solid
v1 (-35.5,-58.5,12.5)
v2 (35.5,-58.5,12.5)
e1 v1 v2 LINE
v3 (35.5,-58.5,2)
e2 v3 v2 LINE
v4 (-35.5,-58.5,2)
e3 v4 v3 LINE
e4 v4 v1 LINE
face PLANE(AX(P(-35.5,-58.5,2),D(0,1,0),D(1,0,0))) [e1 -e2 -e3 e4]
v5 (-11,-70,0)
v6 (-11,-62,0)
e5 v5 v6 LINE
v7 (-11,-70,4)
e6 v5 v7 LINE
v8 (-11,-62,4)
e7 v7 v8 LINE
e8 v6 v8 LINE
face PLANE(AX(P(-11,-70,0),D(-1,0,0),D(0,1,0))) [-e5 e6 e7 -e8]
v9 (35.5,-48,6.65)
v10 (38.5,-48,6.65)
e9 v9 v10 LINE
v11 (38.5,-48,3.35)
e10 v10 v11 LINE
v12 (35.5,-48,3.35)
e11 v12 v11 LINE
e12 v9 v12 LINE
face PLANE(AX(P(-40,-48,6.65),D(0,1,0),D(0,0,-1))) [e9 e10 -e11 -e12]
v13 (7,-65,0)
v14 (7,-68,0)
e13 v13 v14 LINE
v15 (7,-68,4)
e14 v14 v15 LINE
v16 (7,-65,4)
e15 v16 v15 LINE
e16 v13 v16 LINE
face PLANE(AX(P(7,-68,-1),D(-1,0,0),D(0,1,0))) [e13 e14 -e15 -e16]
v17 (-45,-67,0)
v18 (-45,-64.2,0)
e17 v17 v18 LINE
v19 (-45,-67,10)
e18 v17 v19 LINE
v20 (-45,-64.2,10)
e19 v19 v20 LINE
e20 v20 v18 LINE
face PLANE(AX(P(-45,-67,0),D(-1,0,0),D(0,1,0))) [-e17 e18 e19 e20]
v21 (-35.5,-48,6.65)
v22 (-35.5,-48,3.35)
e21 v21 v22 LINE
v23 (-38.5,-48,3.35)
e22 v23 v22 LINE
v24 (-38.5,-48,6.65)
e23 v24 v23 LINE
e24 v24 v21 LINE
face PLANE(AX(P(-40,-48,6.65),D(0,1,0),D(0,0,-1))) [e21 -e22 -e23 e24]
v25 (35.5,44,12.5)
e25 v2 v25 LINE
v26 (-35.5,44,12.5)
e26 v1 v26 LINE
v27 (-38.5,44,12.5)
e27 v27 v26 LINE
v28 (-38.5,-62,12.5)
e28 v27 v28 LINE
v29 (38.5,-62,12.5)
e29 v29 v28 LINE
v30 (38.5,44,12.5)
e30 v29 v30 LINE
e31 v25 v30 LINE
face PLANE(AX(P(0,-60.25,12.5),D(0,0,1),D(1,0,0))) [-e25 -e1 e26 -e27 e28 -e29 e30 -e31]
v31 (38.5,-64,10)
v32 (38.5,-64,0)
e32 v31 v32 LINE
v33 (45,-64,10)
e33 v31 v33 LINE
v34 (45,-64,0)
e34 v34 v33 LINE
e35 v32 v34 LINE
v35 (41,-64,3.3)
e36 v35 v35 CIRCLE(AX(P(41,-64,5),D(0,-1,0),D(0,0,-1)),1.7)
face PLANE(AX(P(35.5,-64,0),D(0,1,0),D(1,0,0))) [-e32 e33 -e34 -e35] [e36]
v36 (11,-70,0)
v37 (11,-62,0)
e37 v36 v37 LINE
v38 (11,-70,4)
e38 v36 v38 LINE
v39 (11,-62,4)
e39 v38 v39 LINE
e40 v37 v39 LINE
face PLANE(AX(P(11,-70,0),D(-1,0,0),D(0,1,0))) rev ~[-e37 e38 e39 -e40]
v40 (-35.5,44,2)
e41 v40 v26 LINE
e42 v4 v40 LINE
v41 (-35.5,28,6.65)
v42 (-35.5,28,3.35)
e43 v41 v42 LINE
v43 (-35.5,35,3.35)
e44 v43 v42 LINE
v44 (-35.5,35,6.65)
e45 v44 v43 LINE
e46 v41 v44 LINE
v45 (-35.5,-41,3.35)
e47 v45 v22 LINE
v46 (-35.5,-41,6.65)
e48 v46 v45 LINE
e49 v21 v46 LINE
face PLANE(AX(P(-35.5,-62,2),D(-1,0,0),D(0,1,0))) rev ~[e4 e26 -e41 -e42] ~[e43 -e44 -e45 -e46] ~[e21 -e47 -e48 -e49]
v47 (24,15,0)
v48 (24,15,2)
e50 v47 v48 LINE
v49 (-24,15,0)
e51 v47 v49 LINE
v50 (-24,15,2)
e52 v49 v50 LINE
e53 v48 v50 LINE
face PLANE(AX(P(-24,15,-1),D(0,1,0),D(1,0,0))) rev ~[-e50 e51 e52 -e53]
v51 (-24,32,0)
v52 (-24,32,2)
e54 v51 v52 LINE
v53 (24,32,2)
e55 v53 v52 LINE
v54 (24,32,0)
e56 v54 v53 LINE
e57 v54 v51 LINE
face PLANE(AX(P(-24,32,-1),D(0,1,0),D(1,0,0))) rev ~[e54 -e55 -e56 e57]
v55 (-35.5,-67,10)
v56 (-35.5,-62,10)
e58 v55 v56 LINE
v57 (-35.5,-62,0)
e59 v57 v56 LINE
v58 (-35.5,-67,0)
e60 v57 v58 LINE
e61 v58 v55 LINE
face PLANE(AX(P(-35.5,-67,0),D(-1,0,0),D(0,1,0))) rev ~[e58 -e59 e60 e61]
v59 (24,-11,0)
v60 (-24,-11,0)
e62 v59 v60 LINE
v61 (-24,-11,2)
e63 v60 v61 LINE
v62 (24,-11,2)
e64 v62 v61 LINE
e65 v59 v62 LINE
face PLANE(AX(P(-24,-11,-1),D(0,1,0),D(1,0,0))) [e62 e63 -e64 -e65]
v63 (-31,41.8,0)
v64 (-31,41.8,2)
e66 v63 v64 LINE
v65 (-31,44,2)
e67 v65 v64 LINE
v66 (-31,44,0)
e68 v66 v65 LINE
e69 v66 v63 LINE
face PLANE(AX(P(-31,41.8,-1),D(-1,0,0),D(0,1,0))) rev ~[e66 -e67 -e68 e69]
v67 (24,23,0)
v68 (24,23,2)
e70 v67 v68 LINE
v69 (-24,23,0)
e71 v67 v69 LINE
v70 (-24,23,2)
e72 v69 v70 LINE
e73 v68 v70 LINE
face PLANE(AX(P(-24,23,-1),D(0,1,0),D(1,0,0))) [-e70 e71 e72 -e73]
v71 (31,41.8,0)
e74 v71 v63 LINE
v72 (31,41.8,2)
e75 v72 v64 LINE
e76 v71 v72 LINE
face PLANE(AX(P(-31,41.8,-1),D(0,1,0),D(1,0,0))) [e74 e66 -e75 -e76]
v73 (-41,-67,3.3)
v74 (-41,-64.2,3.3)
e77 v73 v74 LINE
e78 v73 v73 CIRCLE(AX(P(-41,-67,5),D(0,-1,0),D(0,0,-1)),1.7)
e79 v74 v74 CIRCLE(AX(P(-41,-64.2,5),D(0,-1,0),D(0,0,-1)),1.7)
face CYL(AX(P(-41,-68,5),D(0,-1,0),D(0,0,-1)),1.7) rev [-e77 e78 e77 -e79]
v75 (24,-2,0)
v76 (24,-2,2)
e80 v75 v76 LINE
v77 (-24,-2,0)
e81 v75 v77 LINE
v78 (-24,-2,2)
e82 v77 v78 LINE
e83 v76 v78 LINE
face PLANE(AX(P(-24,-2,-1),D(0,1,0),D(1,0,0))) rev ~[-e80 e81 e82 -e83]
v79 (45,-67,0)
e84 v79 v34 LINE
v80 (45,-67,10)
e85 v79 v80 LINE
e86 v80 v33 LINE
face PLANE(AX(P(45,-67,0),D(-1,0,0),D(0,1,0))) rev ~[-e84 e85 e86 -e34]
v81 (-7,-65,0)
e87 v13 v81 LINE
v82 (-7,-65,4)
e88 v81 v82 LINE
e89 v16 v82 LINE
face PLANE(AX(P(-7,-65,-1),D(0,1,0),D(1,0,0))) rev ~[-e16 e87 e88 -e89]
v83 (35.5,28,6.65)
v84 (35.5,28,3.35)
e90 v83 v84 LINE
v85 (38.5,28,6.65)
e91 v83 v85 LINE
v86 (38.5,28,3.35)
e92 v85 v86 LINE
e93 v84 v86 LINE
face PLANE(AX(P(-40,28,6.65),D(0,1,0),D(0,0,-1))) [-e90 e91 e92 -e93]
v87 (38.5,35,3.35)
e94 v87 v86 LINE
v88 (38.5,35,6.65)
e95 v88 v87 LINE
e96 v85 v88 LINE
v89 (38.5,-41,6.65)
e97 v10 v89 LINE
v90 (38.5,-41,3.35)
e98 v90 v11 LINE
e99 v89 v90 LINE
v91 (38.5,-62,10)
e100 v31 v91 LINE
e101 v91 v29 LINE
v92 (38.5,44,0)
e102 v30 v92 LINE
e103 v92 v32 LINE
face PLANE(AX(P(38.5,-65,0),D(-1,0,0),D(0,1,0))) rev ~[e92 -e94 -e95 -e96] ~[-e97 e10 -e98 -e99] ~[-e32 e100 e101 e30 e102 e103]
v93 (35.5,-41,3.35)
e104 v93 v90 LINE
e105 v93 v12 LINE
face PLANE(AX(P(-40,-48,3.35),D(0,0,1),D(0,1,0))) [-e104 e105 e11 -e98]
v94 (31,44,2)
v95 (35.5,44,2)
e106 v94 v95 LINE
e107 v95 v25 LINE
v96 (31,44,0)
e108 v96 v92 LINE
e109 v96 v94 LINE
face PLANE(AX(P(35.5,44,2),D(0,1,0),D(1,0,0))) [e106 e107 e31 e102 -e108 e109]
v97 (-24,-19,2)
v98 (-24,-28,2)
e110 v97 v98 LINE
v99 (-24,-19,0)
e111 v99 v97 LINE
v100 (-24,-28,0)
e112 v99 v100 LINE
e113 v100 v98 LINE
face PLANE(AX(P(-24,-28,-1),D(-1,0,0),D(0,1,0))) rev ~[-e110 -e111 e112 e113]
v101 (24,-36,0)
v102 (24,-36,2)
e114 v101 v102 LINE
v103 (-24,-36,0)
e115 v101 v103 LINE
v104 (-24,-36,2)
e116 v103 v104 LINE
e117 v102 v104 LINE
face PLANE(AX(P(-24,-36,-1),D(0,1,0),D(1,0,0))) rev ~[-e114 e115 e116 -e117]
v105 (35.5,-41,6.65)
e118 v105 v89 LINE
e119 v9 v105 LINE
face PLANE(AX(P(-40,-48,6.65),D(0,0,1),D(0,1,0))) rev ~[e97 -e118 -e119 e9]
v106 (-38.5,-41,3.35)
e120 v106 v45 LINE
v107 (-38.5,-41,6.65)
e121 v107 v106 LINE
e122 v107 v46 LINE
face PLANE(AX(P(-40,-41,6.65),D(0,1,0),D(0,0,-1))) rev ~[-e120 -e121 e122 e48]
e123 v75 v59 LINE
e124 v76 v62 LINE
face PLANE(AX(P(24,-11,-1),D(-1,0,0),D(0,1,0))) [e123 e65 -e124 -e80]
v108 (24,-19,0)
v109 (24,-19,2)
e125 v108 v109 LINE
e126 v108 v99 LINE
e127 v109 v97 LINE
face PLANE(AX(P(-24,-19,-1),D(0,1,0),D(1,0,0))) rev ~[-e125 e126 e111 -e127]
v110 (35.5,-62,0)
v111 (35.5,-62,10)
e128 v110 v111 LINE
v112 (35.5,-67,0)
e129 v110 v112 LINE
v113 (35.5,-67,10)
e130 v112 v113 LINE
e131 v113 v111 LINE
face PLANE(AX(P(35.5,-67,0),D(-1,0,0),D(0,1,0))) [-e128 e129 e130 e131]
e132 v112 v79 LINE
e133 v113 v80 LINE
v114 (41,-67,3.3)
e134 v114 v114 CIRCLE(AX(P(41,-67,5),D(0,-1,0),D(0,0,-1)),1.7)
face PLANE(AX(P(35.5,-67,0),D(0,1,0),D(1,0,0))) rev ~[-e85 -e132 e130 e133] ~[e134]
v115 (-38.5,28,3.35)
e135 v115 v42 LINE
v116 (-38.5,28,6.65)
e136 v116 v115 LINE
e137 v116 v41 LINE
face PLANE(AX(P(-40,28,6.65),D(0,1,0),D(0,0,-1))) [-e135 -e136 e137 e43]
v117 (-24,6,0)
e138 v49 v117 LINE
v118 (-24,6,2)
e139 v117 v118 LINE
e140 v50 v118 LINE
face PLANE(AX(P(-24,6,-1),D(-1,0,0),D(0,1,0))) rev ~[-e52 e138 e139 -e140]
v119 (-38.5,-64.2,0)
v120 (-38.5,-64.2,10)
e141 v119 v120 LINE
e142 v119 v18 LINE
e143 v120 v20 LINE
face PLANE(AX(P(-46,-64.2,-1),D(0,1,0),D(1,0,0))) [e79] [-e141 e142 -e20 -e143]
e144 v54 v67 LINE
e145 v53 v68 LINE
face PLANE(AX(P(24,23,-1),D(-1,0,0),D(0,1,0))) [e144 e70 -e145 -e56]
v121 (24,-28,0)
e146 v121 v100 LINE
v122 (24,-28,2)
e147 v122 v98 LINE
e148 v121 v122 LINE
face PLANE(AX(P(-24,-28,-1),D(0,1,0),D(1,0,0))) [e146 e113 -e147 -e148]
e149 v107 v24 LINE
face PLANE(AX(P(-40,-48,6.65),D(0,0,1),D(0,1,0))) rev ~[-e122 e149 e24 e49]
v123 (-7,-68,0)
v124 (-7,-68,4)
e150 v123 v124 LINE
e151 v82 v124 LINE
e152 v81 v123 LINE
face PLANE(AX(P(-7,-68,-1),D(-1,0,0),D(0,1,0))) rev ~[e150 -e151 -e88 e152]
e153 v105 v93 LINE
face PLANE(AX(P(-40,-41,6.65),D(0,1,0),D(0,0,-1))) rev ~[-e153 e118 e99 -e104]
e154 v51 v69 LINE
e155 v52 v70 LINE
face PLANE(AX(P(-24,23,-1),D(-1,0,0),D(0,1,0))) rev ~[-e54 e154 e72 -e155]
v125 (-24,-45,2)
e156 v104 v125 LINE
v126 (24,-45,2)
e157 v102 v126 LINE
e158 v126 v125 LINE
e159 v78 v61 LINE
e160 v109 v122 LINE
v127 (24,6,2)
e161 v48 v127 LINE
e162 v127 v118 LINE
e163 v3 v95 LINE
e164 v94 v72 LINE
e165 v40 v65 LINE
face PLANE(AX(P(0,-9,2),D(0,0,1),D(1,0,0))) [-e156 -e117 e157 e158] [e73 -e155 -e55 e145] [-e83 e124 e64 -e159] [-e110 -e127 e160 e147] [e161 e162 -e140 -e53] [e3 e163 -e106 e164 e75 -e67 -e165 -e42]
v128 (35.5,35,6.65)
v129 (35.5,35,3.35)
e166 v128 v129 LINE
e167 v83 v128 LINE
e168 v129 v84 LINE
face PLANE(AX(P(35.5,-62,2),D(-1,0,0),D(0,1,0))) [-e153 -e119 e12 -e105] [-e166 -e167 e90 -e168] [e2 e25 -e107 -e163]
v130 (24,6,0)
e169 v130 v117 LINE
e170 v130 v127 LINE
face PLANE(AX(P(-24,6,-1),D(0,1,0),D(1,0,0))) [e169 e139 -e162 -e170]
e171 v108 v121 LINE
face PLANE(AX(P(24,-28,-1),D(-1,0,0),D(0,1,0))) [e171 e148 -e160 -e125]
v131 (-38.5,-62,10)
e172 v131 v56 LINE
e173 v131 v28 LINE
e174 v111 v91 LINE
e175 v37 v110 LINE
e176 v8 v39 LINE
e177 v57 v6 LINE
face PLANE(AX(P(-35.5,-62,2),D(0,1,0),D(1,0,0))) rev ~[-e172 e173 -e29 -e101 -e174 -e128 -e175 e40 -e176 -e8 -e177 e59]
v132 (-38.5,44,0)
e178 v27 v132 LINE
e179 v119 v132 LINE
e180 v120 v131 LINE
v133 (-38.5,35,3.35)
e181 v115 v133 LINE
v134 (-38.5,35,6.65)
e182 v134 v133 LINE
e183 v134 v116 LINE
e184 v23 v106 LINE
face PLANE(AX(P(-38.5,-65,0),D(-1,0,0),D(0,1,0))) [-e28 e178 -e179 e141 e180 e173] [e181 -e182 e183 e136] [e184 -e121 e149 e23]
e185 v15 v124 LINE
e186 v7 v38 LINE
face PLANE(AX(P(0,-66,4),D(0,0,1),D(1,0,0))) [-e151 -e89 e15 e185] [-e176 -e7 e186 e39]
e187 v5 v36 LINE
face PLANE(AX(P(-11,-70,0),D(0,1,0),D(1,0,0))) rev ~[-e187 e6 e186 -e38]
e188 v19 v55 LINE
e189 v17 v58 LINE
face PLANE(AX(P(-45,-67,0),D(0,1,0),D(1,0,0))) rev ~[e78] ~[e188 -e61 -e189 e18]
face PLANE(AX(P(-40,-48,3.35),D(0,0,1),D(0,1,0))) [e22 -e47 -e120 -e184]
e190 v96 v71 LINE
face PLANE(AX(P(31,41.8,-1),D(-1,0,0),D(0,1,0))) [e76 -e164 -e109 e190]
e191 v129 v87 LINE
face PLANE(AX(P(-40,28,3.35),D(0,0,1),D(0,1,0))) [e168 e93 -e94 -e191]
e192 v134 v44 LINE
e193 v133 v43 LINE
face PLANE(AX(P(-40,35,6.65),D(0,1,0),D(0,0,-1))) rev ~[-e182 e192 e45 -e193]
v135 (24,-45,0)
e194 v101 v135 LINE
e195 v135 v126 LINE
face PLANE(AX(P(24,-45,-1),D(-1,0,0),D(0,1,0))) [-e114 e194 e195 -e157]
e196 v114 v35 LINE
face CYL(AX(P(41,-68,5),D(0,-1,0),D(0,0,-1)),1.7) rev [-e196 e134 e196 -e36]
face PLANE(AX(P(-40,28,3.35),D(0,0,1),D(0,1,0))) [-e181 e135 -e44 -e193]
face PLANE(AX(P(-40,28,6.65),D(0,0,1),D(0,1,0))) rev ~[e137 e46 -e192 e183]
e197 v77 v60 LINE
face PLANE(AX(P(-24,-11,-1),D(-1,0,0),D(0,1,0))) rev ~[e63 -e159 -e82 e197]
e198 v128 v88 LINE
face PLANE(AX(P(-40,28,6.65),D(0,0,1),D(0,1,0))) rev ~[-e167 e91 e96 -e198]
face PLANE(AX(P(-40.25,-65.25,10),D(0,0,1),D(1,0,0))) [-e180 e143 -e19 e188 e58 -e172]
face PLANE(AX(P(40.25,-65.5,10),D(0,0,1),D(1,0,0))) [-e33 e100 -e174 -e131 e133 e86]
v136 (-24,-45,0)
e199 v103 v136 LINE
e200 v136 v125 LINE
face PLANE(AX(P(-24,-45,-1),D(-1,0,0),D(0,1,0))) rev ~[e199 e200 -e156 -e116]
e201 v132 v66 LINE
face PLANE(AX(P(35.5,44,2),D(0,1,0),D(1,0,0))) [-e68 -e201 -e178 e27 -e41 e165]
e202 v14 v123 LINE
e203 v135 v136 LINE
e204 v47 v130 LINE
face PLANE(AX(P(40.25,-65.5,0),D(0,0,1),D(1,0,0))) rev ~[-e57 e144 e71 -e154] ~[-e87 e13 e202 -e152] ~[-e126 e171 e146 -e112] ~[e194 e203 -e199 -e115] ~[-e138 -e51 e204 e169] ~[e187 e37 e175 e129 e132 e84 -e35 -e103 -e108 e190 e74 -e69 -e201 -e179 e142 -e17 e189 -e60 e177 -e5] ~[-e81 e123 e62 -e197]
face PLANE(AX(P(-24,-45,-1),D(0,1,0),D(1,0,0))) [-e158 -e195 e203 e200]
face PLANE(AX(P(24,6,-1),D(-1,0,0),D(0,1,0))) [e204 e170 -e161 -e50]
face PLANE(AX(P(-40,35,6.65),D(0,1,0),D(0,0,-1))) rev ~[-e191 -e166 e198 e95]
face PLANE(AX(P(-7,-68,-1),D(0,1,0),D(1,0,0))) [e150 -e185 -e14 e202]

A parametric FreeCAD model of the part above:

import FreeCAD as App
import Part
import Sketcher
from FreeCAD import Vector
Q = App.Units.Quantity


def add_polygon(sketch, points):
    """Adds a closed chain of lines whose ends are joined by coincident constraints."""
    first, n = sketch.GeometryCount, len(points)
    for a, b in zip(points, points[1:] + points[:1]):
        sketch.addGeometry(Part.LineSegment(App.Vector(*a, 0), App.Vector(*b, 0)), False)
    for i in range(n):
        sketch.addConstraint(Sketcher.Constraint("Coincident", first + i, 2, first + (i + 1) % n, 1))

doc = App.newDocument("Part")
params = doc.addObject("Spreadsheet::Sheet", "Params")
for row, (alias, value) in enumerate([
    ("sketch1_width", "77 mm"),
    ("sketch1_height", "106 mm"),
    ("pad1_length", "2 mm"),
    ("sketch2_width", "3 mm"),
    ("sketch2_height", "106 mm"),
    ("pad2_length", "10.5 mm"),
    ("sketch3_width", "3 mm"),
    ("sketch3_height", "106 mm"),
    ("pad3_length", "10.5 mm"),
    ("sketch4_width", "71 mm"),
    ("sketch4_height", "3.5 mm"),
    ("pad4_length", "10.5 mm"),
    ("sketch5_width", "22 mm"),
    ("sketch5_height", "8 mm"),
    ("pad5_length", "4 mm"),
    ("sketch6_width", "3 mm"),
    ("sketch6_height", "5 mm"),
    ("pad6_length", "10 mm"),
    ("sketch7_width", "3 mm"),
    ("sketch7_height", "5 mm"),
    ("pad7_length", "10 mm"),
    ("sketch8_width", "9.5 mm"),
    ("sketch8_height", "3.5 mm"),
    ("pad8_length", "10 mm"),
    ("sketch9_height", "3 mm"),
    ("sketch9_width", "9.5 mm"),
    ("pad9_length", "10 mm"),
    ("sketch10_diameter", "3.4 mm"),
    ("pocket1_length", "5 mm"),
    ("sketch11_width", "48 mm"),
    ("sketch11_height", "9 mm"),
    ("pocket2_length", "4 mm"),
    ("sketch12_diameter", "3.3 mm"),
    ("pocket3_length", "80 mm"),
    ("sketch13_width", "14 mm"),
    ("sketch13_height", "3 mm"),
    ("pocket4_length", "6 mm"),
    ("sketch14_width", "7.5 mm"),
    ("sketch14_height", "4.2 mm"),
    ("pocket5_length", "15 mm"),
    ("sketch15_width", "7 mm"),
    ("sketch15_height", "3.3 mm"),
    ("pocket6_length", "80 mm"),
    ("sketch16_width", "7 mm"),
    ("sketch16_height", "3.3 mm"),
    ("pocket7_length", "80 mm"),
    ("sketch17_width", "62 mm"),
    ("sketch17_height", "3.2 mm"),
    ("pocket8_length", "5 mm"),
], start=1):
    params.set(f"A{row}", alias)
    params.set(f"B{row}", "=" + value)
    params.setAlias(f"B{row}", alias)

body = doc.addObject("PartDesign::Body", "Body")

# Sketch on XY plane
sketch1 = body.newObject("Sketcher::SketchObject", "Sketch")
sketch1.AttachmentSupport = (doc.getObject("XY_Plane"), [""])
sketch1.MapMode = "FlatFace"
add_polygon(sketch1, [(-38, 44), (-38, -62), (38, -62), (38, 44)])  # lines 0-3
sketch1.addConstraint(Sketcher.Constraint("Vertical", 0))
sketch1.addConstraint(Sketcher.Constraint("Horizontal", 1))
sketch1.addConstraint(Sketcher.Constraint("Vertical", 2))
sketch1.addConstraint(Sketcher.Constraint("Horizontal", 3))
sketch1.addConstraint(Sketcher.Constraint("DistanceX", 1, 1, 1, 2, Q("77 mm")))
sketch1.addConstraint(Sketcher.Constraint("DistanceY", 0, 2, 0, 1, Q("106 mm")))
sketch1.addConstraint(Sketcher.Constraint("DistanceY", 0, 2, -1, 1, Q("62 mm")))
sketch1.addConstraint(Sketcher.Constraint("DistanceX", 0, 2, -1, 1, Q("38.5 mm")))
sketch1.setExpression("Constraints[8]", "Params.sketch1_width")
sketch1.setExpression("Constraints[9]", "Params.sketch1_height")
pad1 = body.newObject("PartDesign::Pad", "Pad")
pad1.Profile = sketch1
pad1.setExpression("Length", "Params.pad1_length")

# Sketch on XY plane
sketch2 = body.newObject("Sketcher::SketchObject", "Sketch001")
sketch2.AttachmentSupport = (doc.getObject("XY_Plane"), [""])
sketch2.MapMode = "FlatFace"
sketch2.AttachmentOffset = App.Placement(Vector(0, 0, 2), App.Rotation())
add_polygon(sketch2, [(-38.5, 44), (-38.5, -62), (-35.5, -62), (-35.5, 44)])  # lines 0-3
sketch2.addConstraint(Sketcher.Constraint("Vertical", 0))
sketch2.addConstraint(Sketcher.Constraint("Horizontal", 1))
sketch2.addConstraint(Sketcher.Constraint("Vertical", 2))
sketch2.addConstraint(Sketcher.Constraint("Horizontal", 3))
sketch2.addConstraint(Sketcher.Constraint("DistanceX", 1, 1, 1, 2, Q("3 mm")))
sketch2.addConstraint(Sketcher.Constraint("DistanceY", 0, 2, 0, 1, Q("106 mm")))
sketch2.addConstraint(Sketcher.Constraint("DistanceY", 0, 2, -1, 1, Q("62 mm")))
sketch2.addConstraint(Sketcher.Constraint("DistanceX", 0, 2, -1, 1, Q("38.5 mm")))
sketch2.setExpression("Constraints[8]", "Params.sketch2_width")
sketch2.setExpression("Constraints[9]", "Params.sketch2_height")
pad2 = body.newObject("PartDesign::Pad", "Pad001")
pad2.Profile = sketch2
pad2.setExpression("Length", "Params.pad2_length")

# Sketch on XY plane
sketch3 = body.newObject("Sketcher::SketchObject", "Sketch002")
sketch3.AttachmentSupport = (doc.getObject("XY_Plane"), [""])
sketch3.MapMode = "FlatFace"
sketch3.AttachmentOffset = App.Placement(Vector(0, 0, 2), App.Rotation())
add_polygon(sketch3, [(35.5, 44), (35.5, -62), (38.5, -62), (38.5, 44)])  # lines 0-3
sketch3.addConstraint(Sketcher.Constraint("Vertical", 0))
sketch3.addConstraint(Sketcher.Constraint("Horizontal", 1))
sketch3.addConstraint(Sketcher.Constraint("Vertical", 2))
sketch3.addConstraint(Sketcher.Constraint("Horizontal", 3))
sketch3.addConstraint(Sketcher.Constraint("DistanceX", 1, 1, 1, 2, Q("3 mm")))
sketch3.addConstraint(Sketcher.Constraint("DistanceY", 0, 2, 0, 1, Q("106 mm")))
sketch3.addConstraint(Sketcher.Constraint("DistanceY", 0, 2, -1, 1, Q("62 mm")))
sketch3.addConstraint(Sketcher.Constraint("DistanceX", -1, 1, 0, 2, Q("35.5 mm")))
sketch3.setExpression("Constraints[8]", "Params.sketch3_width")
sketch3.setExpression("Constraints[9]", "Params.sketch3_height")
pad3 = body.newObject("PartDesign::Pad", "Pad002")
pad3.Profile = sketch3
pad3.setExpression("Length", "Params.pad3_length")

# Sketch on XY plane
sketch4 = body.newObject("Sketcher::SketchObject", "Sketch003")
sketch4.AttachmentSupport = (doc.getObject("XY_Plane"), [""])
sketch4.MapMode = "FlatFace"
sketch4.AttachmentOffset = App.Placement(Vector(0, 0, 2), App.Rotation())
add_polygon(sketch4, [(-35.5, -58.5), (-35.5, -62), (35.5, -62), (35.5, -58.5)])  # lines 0-3
sketch4.addConstraint(Sketcher.Constraint("Vertical", 0))
sketch4.addConstraint(Sketcher.Constraint("Horizontal", 1))
sketch4.addConstraint(Sketcher.Constraint("Vertical", 2))
sketch4.addConstraint(Sketcher.Constraint("Horizontal", 3))
sketch4.addConstraint(Sketcher.Constraint("DistanceX", 1, 1, 1, 2, Q("71 mm")))
sketch4.addConstraint(Sketcher.Constraint("DistanceY", 0, 2, 0, 1, Q("3.5 mm")))
sketch4.addConstraint(Sketcher.Constraint("DistanceY", 0, 2, -1, 1, Q("62 mm")))
sketch4.addConstraint(Sketcher.Constraint("DistanceX", 0, 2, -1, 1, Q("35.5 mm")))
sketch4.setExpression("Constraints[8]", "Params.sketch4_width")
sketch4.setExpression("Constraints[9]", "Params.sketch4_height")
pad4 = body.newObject("PartDesign::Pad", "Pad003")
pad4.Profile = sketch4
pad4.setExpression("Length", "Params.pad4_length")

# Sketch on XY plane
sketch5 = body.newObject("Sketcher::SketchObject", "Sketch004")
sketch5.AttachmentSupport = (doc.getObject("XY_Plane"), [""])
sketch5.MapMode = "FlatFace"
add_polygon(sketch5, [(-11, -62), (-11, -70), (11, -70), (11, -62)])  # lines 0-3
sketch5.addConstraint(Sketcher.Constraint("Vertical", 0))
sketch5.addConstraint(Sketcher.Constraint("Horizontal", 1))
sketch5.addConstraint(Sketcher.Constraint("Vertical", 2))
sketch5.addConstraint(Sketcher.Constraint("Horizontal", 3))
sketch5.addConstraint(Sketcher.Constraint("DistanceX", 1, 1, 1, 2, Q("22 mm")))
sketch5.addConstraint(Sketcher.Constraint("DistanceY", 0, 2, 0, 1, Q("8 mm")))
sketch5.addConstraint(Sketcher.Constraint("DistanceX", 0, 2, -1, 1, Q("11 mm")))
sketch5.addConstraint(Sketcher.Constraint("DistanceY", 0, 2, -1, 1, Q("70 mm")))
sketch5.setExpression("Constraints[8]", "Params.sketch5_width")
sketch5.setExpression("Constraints[9]", "Params.sketch5_height")
pad5 = body.newObject("PartDesign::Pad", "Pad004")
pad5.Profile = sketch5
pad5.setExpression("Length", "Params.pad5_length")

# Sketch on XY plane
sketch6 = body.newObject("Sketcher::SketchObject", "Sketch005")
sketch6.AttachmentSupport = (doc.getObject("XY_Plane"), [""])
sketch6.MapMode = "FlatFace"
add_polygon(sketch6, [(-38.5, -60), (-38.5, -65), (-35.5, -65), (-35.5, -60)])  # lines 0-3
sketch6.addConstraint(Sketcher.Constraint("Vertical", 0))
sketch6.addConstraint(Sketcher.Constraint("Horizontal", 1))
sketch6.addConstraint(Sketcher.Constraint("Vertical", 2))
sketch6.addConstraint(Sketcher.Constraint("Horizontal", 3))
sketch6.addConstraint(Sketcher.Constraint("DistanceX", 1, 1, 1, 2, Q("3 mm")))
sketch6.addConstraint(Sketcher.Constraint("DistanceY", 0, 2, 0, 1, Q("5 mm")))
sketch6.addConstraint(Sketcher.Constraint("DistanceY", 0, 2, -1, 1, Q("65 mm")))
sketch6.addConstraint(Sketcher.Constraint("DistanceX", 0, 2, -1, 1, Q("38.5 mm")))
sketch6.setExpression("Constraints[8]", "Params.sketch6_width")
sketch6.setExpression("Constraints[9]", "Params.sketch6_height")
pad6 = body.newObject("PartDesign::Pad", "Pad005")
pad6.Profile = sketch6
pad6.setExpression("Length", "Params.pad6_length")

# Sketch on XY plane
sketch7 = body.newObject("Sketcher::SketchObject", "Sketch006")
sketch7.AttachmentSupport = (doc.getObject("XY_Plane"), [""])
sketch7.MapMode = "FlatFace"
add_polygon(sketch7, [(35.5, -60), (35.5, -65), (38.5, -65), (38.5, -60)])  # lines 0-3
sketch7.addConstraint(Sketcher.Constraint("Vertical", 0))
sketch7.addConstraint(Sketcher.Constraint("Horizontal", 1))
sketch7.addConstraint(Sketcher.Constraint("Vertical", 2))
sketch7.addConstraint(Sketcher.Constraint("Horizontal", 3))
sketch7.addConstraint(Sketcher.Constraint("DistanceX", 1, 1, 1, 2, Q("3 mm")))
sketch7.addConstraint(Sketcher.Constraint("DistanceY", 0, 2, 0, 1, Q("5 mm")))
sketch7.addConstraint(Sketcher.Constraint("DistanceY", 0, 2, -1, 1, Q("65 mm")))
sketch7.addConstraint(Sketcher.Constraint("DistanceX", -1, 1, 0, 2, Q("35.5 mm")))
sketch7.setExpression("Constraints[8]", "Params.sketch7_width")
sketch7.setExpression("Constraints[9]", "Params.sketch7_height")
pad7 = body.newObject("PartDesign::Pad", "Pad006")
pad7.Profile = sketch7
pad7.setExpression("Length", "Params.pad7_length")

# Sketch on XY plane
sketch8 = body.newObject("Sketcher::SketchObject", "Sketch007")
sketch8.AttachmentSupport = (doc.getObject("XY_Plane"), [""])
sketch8.MapMode = "FlatFace"
add_polygon(sketch8, [(-45, -63.5), (-45, -67), (-35.5, -67), (-35.5, -63.5)])  # lines 0-3
sketch8.addConstraint(Sketcher.Constraint("Vertical", 0))
sketch8.addConstraint(Sketcher.Constraint("Horizontal", 1))
sketch8.addConstraint(Sketcher.Constraint("Vertical", 2))
sketch8.addConstraint(Sketcher.Constraint("Horizontal", 3))
sketch8.addConstraint(Sketcher.Constraint("DistanceX", 1, 1, 1, 2, Q("9.5 mm")))
sketch8.addConstraint(Sketcher.Constraint("DistanceY", 0, 2, 0, 1, Q("3.5 mm")))
sketch8.addConstraint(Sketcher.Constraint("DistanceX", 0, 2, -1, 1, Q("45 mm")))
sketch8.addConstraint(Sketcher.Constraint("DistanceY", 0, 2, -1, 1, Q("67 mm")))
sketch8.setExpression("Constraints[8]", "Params.sketch8_width")
sketch8.setExpression("Constraints[9]", "Params.sketch8_height")
pad8 = body.newObject("PartDesign::Pad", "Pad007")
pad8.Profile = sketch8
pad8.setExpression("Length", "Params.pad8_length")

# Sketch on XY plane
sketch9 = body.newObject("Sketcher::SketchObject", "Sketch008")
sketch9.AttachmentSupport = (doc.getObject("XY_Plane"), [""])
sketch9.MapMode = "FlatFace"
add_polygon(sketch9, [(35.5, -64), (35.5, -67), (45, -67), (45, -64)])  # lines 0-3
sketch9.addConstraint(Sketcher.Constraint("Vertical", 0))
sketch9.addConstraint(Sketcher.Constraint("Horizontal", 1))
sketch9.addConstraint(Sketcher.Constraint("Vertical", 2))
sketch9.addConstraint(Sketcher.Constraint("Horizontal", 3))
sketch9.addConstraint(Sketcher.Constraint("DistanceY", 0, 2, 0, 1, Q("3 mm")))
sketch9.addConstraint(Sketcher.Constraint("DistanceX", 1, 1, 1, 2, Q("9.5 mm")))
sketch9.addConstraint(Sketcher.Constraint("DistanceY", 0, 2, -1, 1, Q("67 mm")))
sketch9.addConstraint(Sketcher.Constraint("DistanceX", -1, 1, 1, 2, Q("45 mm")))
sketch9.setExpression("Constraints[8]", "Params.sketch9_height")
sketch9.setExpression("Constraints[9]", "Params.sketch9_width")
pad9 = body.newObject("PartDesign::Pad", "Pad008")
pad9.Profile = sketch9
pad9.setExpression("Length", "Params.pad9_length")

# Sketch on XZ plane
sketch10 = body.newObject("Sketcher::SketchObject", "Sketch009")
sketch10.AttachmentSupport = (doc.getObject("XZ_Plane"), [""])
sketch10.MapMode = "FlatFace"
sketch10.AttachmentOffset = App.Placement(Vector(0, 0, 68), App.Rotation())
sketch10.addGeometry(Part.Circle(Vector(-41, 5, 0), Vector(0, 0, 1), 1.7), False)
sketch10.addGeometry(Part.Circle(Vector(41, 5, 0), Vector(0, 0, 1), 1.7), False)
sketch10.addConstraint(Sketcher.Constraint("Equal", 0, 1))
sketch10.addConstraint(Sketcher.Constraint("Symmetric", 0, 3, 1, 3, -2))
sketch10.addConstraint(Sketcher.Constraint("Diameter", 0, Q("3.4 mm")))
sketch10.addConstraint(Sketcher.Constraint("DistanceX", 0, 3, -1, 1, Q("41 mm")))
sketch10.addConstraint(Sketcher.Constraint("DistanceY", -1, 1, 0, 3, Q("5 mm")))
sketch10.setExpression("Constraints[2]", "Params.sketch10_diameter")
pocket1 = body.newObject("PartDesign::Pocket", "Pocket")
pocket1.Profile = sketch10
pocket1.setExpression("Length", "Params.pocket1_length")

# Sketch on XY plane
sketch11 = body.newObject("Sketcher::SketchObject", "Sketch010")
sketch11.AttachmentSupport = (doc.getObject("XY_Plane"), [""])
sketch11.MapMode = "FlatFace"
sketch11.AttachmentOffset = App.Placement(Vector(0, 0, -1), App.Rotation())
add_polygon(sketch11, [(-24, -36), (-24, -45), (24, -45), (24, -36)])  # lines 0-3
add_polygon(sketch11, [(-24, -19), (-24, -28), (24, -28), (24, -19)])  # lines 4-7
add_polygon(sketch11, [(-24, -2), (-24, -11), (24, -11), (24, -2)])  # lines 8-11
add_polygon(sketch11, [(-24, 15), (-24, 6), (24, 6), (24, 15)])  # lines 12-15
add_polygon(sketch11, [(-24, 32), (-24, 23), (24, 23), (24, 32)])  # lines 16-19
sketch11.addConstraint(Sketcher.Constraint("Vertical", 0))
sketch11.addConstraint(Sketcher.Constraint("Horizontal", 1))
sketch11.addConstraint(Sketcher.Constraint("Vertical", 2))
sketch11.addConstraint(Sketcher.Constraint("Horizontal", 3))
sketch11.addConstraint(Sketcher.Constraint("Vertical", 4))
sketch11.addConstraint(Sketcher.Constraint("Horizontal", 5))
sketch11.addConstraint(Sketcher.Constraint("Vertical", 6))
sketch11.addConstraint(Sketcher.Constraint("Horizontal", 7))
sketch11.addConstraint(Sketcher.Constraint("Vertical", 8))
sketch11.addConstraint(Sketcher.Constraint("Horizontal", 9))
sketch11.addConstraint(Sketcher.Constraint("Vertical", 10))
sketch11.addConstraint(Sketcher.Constraint("Horizontal", 11))
sketch11.addConstraint(Sketcher.Constraint("Vertical", 12))
sketch11.addConstraint(Sketcher.Constraint("Horizontal", 13))
sketch11.addConstraint(Sketcher.Constraint("Vertical", 14))
sketch11.addConstraint(Sketcher.Constraint("Horizontal", 15))
sketch11.addConstraint(Sketcher.Constraint("Vertical", 16))
sketch11.addConstraint(Sketcher.Constraint("Horizontal", 17))
sketch11.addConstraint(Sketcher.Constraint("Vertical", 18))
sketch11.addConstraint(Sketcher.Constraint("Horizontal", 19))
sketch11.addConstraint(Sketcher.Constraint("Vertical", 3, 2, 4, 2))
sketch11.addConstraint(Sketcher.Constraint("Vertical", 2, 2, 5, 2))
sketch11.addConstraint(Sketcher.Constraint("Vertical", 7, 2, 8, 2))
sketch11.addConstraint(Sketcher.Constraint("Vertical", 6, 2, 9, 2))
sketch11.addConstraint(Sketcher.Constraint("Vertical", 11, 2, 12, 2))
sketch11.addConstraint(Sketcher.Constraint("Vertical", 10, 2, 13, 2))
sketch11.addConstraint(Sketcher.Constraint("Vertical", 15, 2, 16, 2))
sketch11.addConstraint(Sketcher.Constraint("Vertical", 14, 2, 17, 2))
sketch11.addConstraint(Sketcher.Constraint("Equal", 2, 4))
sketch11.addConstraint(Sketcher.Constraint("Equal", 6, 8))
sketch11.addConstraint(Sketcher.Constraint("Equal", 10, 12))
sketch11.addConstraint(Sketcher.Constraint("Equal", 14, 16))
sketch11.addConstraint(Sketcher.Constraint("DistanceX", 1, 1, 1, 2, Q("48 mm")))
sketch11.addConstraint(Sketcher.Constraint("DistanceY", 0, 2, 0, 1, Q("9 mm")))
sketch11.addConstraint(Sketcher.Constraint("DistanceX", 0, 2, -1, 1, Q("24 mm")))
sketch11.addConstraint(Sketcher.Constraint("DistanceY", 0, 2, -1, 1, Q("45 mm")))
sketch11.addConstraint(Sketcher.Constraint("DistanceY", 4, 2, -1, 1, Q("28 mm")))
sketch11.addConstraint(Sketcher.Constraint("DistanceY", 8, 2, -1, 1, Q("11 mm")))
sketch11.addConstraint(Sketcher.Constraint("DistanceY", -1, 1, 12, 2, Q("6 mm")))
sketch11.addConstraint(Sketcher.Constraint("DistanceY", -1, 1, 16, 2, Q("23 mm")))
sketch11.setExpression("Constraints[52]", "Params.sketch11_width")
sketch11.setExpression("Constraints[53]", "Params.sketch11_height")
pocket2 = body.newObject("PartDesign::Pocket", "Pocket001")
pocket2.Profile = sketch11
pocket2.setExpression("Length", "Params.pocket2_length")
pocket2.Reversed = True

# Sketch on YZ plane
sketch12 = body.newObject("Sketcher::SketchObject", "Sketch011")
sketch12.AttachmentSupport = (doc.getObject("YZ_Plane"), [""])
sketch12.MapMode = "FlatFace"
sketch12.AttachmentOffset = App.Placement(Vector(0, 0, -40), App.Rotation())
sketch12.addGeometry(Part.Circle(Vector(-45.5, 5, 0), Vector(0, 0, 1), 1.6), False)
sketch12.addGeometry(Part.Circle(Vector(31.1, 5, 0), Vector(0, 0, 1), 1.6), False)
sketch12.addConstraint(Sketcher.Constraint("Equal", 0, 1))
sketch12.addConstraint(Sketcher.Constraint("Horizontal", 0, 3, 1, 3))
sketch12.addConstraint(Sketcher.Constraint("Diameter", 0, Q("3.3 mm")))
sketch12.addConstraint(Sketcher.Constraint("DistanceY", -1, 1, 0, 3, Q("5 mm")))
sketch12.addConstraint(Sketcher.Constraint("DistanceX", 0, 3, 1, 3, Q("76.6 mm")))
sketch12.addConstraint(Sketcher.Constraint("DistanceX", 0, 3, -1, 1, Q("45.55 mm")))
sketch12.setExpression("Constraints[2]", "Params.sketch12_diameter")
pocket3 = body.newObject("PartDesign::Pocket", "Pocket002")
pocket3.Profile = sketch12
pocket3.setExpression("Length", "Params.pocket3_length")
pocket3.Reversed = True

# Sketch on XY plane
sketch13 = body.newObject("Sketcher::SketchObject", "Sketch012")
sketch13.AttachmentSupport = (doc.getObject("XY_Plane"), [""])
sketch13.MapMode = "FlatFace"
sketch13.AttachmentOffset = App.Placement(Vector(0, 0, -1), App.Rotation())
add_polygon(sketch13, [(-7, -65), (-7, -68), (7, -68), (7, -65)])  # lines 0-3
sketch13.addConstraint(Sketcher.Constraint("Vertical", 0))
sketch13.addConstraint(Sketcher.Constraint("Horizontal", 1))
sketch13.addConstraint(Sketcher.Constraint("Vertical", 2))
sketch13.addConstraint(Sketcher.Constraint("Horizontal", 3))
sketch13.addConstraint(Sketcher.Constraint("DistanceX", 1, 1, 1, 2, Q("14 mm")))
sketch13.addConstraint(Sketcher.Constraint("DistanceY", 0, 2, 0, 1, Q("3 mm")))
sketch13.addConstraint(Sketcher.Constraint("DistanceX", 0, 2, -1, 1, Q("7 mm")))
sketch13.addConstraint(Sketcher.Constraint("DistanceY", 0, 2, -1, 1, Q("68 mm")))
sketch13.setExpression("Constraints[8]", "Params.sketch13_width")
sketch13.setExpression("Constraints[9]", "Params.sketch13_height")
pocket4 = body.newObject("PartDesign::Pocket", "Pocket003")
pocket4.Profile = sketch13
pocket4.setExpression("Length", "Params.pocket4_length")
pocket4.Reversed = True

# Sketch on XY plane
sketch14 = body.newObject("Sketcher::SketchObject", "Sketch013")
sketch14.AttachmentSupport = (doc.getObject("XY_Plane"), [""])
sketch14.MapMode = "FlatFace"
sketch14.AttachmentOffset = App.Placement(Vector(0, 0, -1), App.Rotation())
add_polygon(sketch14, [(-46, -60), (-46, -64.2), (-38.5, -64.2), (-38.5, -60)])  # lines 0-3
sketch14.addConstraint(Sketcher.Constraint("Vertical", 0))
sketch14.addConstraint(Sketcher.Constraint("Horizontal", 1))
sketch14.addConstraint(Sketcher.Constraint("Vertical", 2))
sketch14.addConstraint(Sketcher.Constraint("Horizontal", 3))
sketch14.addConstraint(Sketcher.Constraint("DistanceX", 1, 1, 1, 2, Q("7.5 mm")))
sketch14.addConstraint(Sketcher.Constraint("DistanceY", 0, 2, 0, 1, Q("4.2 mm")))
sketch14.addConstraint(Sketcher.Constraint("DistanceX", 0, 2, -1, 1, Q("46 mm")))
sketch14.addConstraint(Sketcher.Constraint("DistanceY", 2, 2, -1, 1, Q("60 mm")))
sketch14.setExpression("Constraints[8]", "Params.sketch14_width")
sketch14.setExpression("Constraints[9]", "Params.sketch14_height")
pocket5 = body.newObject("PartDesign::Pocket", "Pocket004")
pocket5.Profile = sketch14
pocket5.setExpression("Length", "Params.pocket5_length")
pocket5.Reversed = True

# Sketch on YZ plane
sketch15 = body.newObject("Sketcher::SketchObject", "Sketch014")
sketch15.AttachmentSupport = (doc.getObject("YZ_Plane"), [""])
sketch15.MapMode = "FlatFace"
sketch15.AttachmentOffset = App.Placement(Vector(0, 0, -40), App.Rotation())
add_polygon(sketch15, [(-41, 6.7), (-48, 6.7), (-48, 3.4), (-41, 3.4)])  # lines 0-3
sketch15.addConstraint(Sketcher.Constraint("Horizontal", 0))
sketch15.addConstraint(Sketcher.Constraint("Vertical", 1))
sketch15.addConstraint(Sketcher.Constraint("Horizontal", 2))
sketch15.addConstraint(Sketcher.Constraint("Vertical", 3))
sketch15.addConstraint(Sketcher.Constraint("DistanceX", 0, 2, 0, 1, Q("7 mm")))
sketch15.addConstraint(Sketcher.Constraint("DistanceY", 1, 2, 1, 1, Q("3.3 mm")))
sketch15.addConstraint(Sketcher.Constraint("DistanceX", 0, 2, -1, 1, Q("48 mm")))
sketch15.addConstraint(Sketcher.Constraint("DistanceY", -1, 1, 0, 2, Q("6.65 mm")))
sketch15.setExpression("Constraints[8]", "Params.sketch15_width")
sketch15.setExpression("Constraints[9]", "Params.sketch15_height")
pocket6 = body.newObject("PartDesign::Pocket", "Pocket005")
pocket6.Profile = sketch15
pocket6.setExpression("Length", "Params.pocket6_length")
pocket6.Reversed = True

# Sketch on YZ plane
sketch16 = body.newObject("Sketcher::SketchObject", "Sketch015")
sketch16.AttachmentSupport = (doc.getObject("YZ_Plane"), [""])
sketch16.MapMode = "FlatFace"
sketch16.AttachmentOffset = App.Placement(Vector(0, 0, -40), App.Rotation())
add_polygon(sketch16, [(35, 6.7), (28, 6.7), (28, 3.4), (35, 3.4)])  # lines 0-3
sketch16.addConstraint(Sketcher.Constraint("Horizontal", 0))
sketch16.addConstraint(Sketcher.Constraint("Vertical", 1))
sketch16.addConstraint(Sketcher.Constraint("Horizontal", 2))
sketch16.addConstraint(Sketcher.Constraint("Vertical", 3))
sketch16.addConstraint(Sketcher.Constraint("DistanceX", 0, 2, 0, 1, Q("7 mm")))
sketch16.addConstraint(Sketcher.Constraint("DistanceY", 1, 2, 1, 1, Q("3.3 mm")))
sketch16.addConstraint(Sketcher.Constraint("DistanceX", -1, 1, 0, 2, Q("28 mm")))
sketch16.addConstraint(Sketcher.Constraint("DistanceY", -1, 1, 0, 2, Q("6.65 mm")))
sketch16.setExpression("Constraints[8]", "Params.sketch16_width")
sketch16.setExpression("Constraints[9]", "Params.sketch16_height")
pocket7 = body.newObject("PartDesign::Pocket", "Pocket006")
pocket7.Profile = sketch16
pocket7.setExpression("Length", "Params.pocket7_length")
pocket7.Reversed = True

# Sketch on XY plane
sketch17 = body.newObject("Sketcher::SketchObject", "Sketch016")
sketch17.AttachmentSupport = (doc.getObject("XY_Plane"), [""])
sketch17.MapMode = "FlatFace"
sketch17.AttachmentOffset = App.Placement(Vector(0, 0, -1), App.Rotation())
add_polygon(sketch17, [(-31, 45), (-31, 41.8), (31, 41.8), (31, 45)])  # lines 0-3
sketch17.addConstraint(Sketcher.Constraint("Vertical", 0))
sketch17.addConstraint(Sketcher.Constraint("Horizontal", 1))
sketch17.addConstraint(Sketcher.Constraint("Vertical", 2))
sketch17.addConstraint(Sketcher.Constraint("Horizontal", 3))
sketch17.addConstraint(Sketcher.Constraint("DistanceX", 1, 1, 1, 2, Q("62 mm")))
sketch17.addConstraint(Sketcher.Constraint("DistanceY", 0, 2, 0, 1, Q("3.2 mm")))
sketch17.addConstraint(Sketcher.Constraint("DistanceX", 0, 2, -1, 1, Q("31 mm")))
sketch17.addConstraint(Sketcher.Constraint("DistanceY", -1, 1, 2, 2, Q("45 mm")))
sketch17.setExpression("Constraints[8]", "Params.sketch17_width")
sketch17.setExpression("Constraints[9]", "Params.sketch17_height")
pocket8 = body.newObject("PartDesign::Pocket", "Pocket007")
pocket8.Profile = sketch17
pocket8.setExpression("Length", "Params.pocket8_length")
pocket8.Reversed = True

doc.recompute()
